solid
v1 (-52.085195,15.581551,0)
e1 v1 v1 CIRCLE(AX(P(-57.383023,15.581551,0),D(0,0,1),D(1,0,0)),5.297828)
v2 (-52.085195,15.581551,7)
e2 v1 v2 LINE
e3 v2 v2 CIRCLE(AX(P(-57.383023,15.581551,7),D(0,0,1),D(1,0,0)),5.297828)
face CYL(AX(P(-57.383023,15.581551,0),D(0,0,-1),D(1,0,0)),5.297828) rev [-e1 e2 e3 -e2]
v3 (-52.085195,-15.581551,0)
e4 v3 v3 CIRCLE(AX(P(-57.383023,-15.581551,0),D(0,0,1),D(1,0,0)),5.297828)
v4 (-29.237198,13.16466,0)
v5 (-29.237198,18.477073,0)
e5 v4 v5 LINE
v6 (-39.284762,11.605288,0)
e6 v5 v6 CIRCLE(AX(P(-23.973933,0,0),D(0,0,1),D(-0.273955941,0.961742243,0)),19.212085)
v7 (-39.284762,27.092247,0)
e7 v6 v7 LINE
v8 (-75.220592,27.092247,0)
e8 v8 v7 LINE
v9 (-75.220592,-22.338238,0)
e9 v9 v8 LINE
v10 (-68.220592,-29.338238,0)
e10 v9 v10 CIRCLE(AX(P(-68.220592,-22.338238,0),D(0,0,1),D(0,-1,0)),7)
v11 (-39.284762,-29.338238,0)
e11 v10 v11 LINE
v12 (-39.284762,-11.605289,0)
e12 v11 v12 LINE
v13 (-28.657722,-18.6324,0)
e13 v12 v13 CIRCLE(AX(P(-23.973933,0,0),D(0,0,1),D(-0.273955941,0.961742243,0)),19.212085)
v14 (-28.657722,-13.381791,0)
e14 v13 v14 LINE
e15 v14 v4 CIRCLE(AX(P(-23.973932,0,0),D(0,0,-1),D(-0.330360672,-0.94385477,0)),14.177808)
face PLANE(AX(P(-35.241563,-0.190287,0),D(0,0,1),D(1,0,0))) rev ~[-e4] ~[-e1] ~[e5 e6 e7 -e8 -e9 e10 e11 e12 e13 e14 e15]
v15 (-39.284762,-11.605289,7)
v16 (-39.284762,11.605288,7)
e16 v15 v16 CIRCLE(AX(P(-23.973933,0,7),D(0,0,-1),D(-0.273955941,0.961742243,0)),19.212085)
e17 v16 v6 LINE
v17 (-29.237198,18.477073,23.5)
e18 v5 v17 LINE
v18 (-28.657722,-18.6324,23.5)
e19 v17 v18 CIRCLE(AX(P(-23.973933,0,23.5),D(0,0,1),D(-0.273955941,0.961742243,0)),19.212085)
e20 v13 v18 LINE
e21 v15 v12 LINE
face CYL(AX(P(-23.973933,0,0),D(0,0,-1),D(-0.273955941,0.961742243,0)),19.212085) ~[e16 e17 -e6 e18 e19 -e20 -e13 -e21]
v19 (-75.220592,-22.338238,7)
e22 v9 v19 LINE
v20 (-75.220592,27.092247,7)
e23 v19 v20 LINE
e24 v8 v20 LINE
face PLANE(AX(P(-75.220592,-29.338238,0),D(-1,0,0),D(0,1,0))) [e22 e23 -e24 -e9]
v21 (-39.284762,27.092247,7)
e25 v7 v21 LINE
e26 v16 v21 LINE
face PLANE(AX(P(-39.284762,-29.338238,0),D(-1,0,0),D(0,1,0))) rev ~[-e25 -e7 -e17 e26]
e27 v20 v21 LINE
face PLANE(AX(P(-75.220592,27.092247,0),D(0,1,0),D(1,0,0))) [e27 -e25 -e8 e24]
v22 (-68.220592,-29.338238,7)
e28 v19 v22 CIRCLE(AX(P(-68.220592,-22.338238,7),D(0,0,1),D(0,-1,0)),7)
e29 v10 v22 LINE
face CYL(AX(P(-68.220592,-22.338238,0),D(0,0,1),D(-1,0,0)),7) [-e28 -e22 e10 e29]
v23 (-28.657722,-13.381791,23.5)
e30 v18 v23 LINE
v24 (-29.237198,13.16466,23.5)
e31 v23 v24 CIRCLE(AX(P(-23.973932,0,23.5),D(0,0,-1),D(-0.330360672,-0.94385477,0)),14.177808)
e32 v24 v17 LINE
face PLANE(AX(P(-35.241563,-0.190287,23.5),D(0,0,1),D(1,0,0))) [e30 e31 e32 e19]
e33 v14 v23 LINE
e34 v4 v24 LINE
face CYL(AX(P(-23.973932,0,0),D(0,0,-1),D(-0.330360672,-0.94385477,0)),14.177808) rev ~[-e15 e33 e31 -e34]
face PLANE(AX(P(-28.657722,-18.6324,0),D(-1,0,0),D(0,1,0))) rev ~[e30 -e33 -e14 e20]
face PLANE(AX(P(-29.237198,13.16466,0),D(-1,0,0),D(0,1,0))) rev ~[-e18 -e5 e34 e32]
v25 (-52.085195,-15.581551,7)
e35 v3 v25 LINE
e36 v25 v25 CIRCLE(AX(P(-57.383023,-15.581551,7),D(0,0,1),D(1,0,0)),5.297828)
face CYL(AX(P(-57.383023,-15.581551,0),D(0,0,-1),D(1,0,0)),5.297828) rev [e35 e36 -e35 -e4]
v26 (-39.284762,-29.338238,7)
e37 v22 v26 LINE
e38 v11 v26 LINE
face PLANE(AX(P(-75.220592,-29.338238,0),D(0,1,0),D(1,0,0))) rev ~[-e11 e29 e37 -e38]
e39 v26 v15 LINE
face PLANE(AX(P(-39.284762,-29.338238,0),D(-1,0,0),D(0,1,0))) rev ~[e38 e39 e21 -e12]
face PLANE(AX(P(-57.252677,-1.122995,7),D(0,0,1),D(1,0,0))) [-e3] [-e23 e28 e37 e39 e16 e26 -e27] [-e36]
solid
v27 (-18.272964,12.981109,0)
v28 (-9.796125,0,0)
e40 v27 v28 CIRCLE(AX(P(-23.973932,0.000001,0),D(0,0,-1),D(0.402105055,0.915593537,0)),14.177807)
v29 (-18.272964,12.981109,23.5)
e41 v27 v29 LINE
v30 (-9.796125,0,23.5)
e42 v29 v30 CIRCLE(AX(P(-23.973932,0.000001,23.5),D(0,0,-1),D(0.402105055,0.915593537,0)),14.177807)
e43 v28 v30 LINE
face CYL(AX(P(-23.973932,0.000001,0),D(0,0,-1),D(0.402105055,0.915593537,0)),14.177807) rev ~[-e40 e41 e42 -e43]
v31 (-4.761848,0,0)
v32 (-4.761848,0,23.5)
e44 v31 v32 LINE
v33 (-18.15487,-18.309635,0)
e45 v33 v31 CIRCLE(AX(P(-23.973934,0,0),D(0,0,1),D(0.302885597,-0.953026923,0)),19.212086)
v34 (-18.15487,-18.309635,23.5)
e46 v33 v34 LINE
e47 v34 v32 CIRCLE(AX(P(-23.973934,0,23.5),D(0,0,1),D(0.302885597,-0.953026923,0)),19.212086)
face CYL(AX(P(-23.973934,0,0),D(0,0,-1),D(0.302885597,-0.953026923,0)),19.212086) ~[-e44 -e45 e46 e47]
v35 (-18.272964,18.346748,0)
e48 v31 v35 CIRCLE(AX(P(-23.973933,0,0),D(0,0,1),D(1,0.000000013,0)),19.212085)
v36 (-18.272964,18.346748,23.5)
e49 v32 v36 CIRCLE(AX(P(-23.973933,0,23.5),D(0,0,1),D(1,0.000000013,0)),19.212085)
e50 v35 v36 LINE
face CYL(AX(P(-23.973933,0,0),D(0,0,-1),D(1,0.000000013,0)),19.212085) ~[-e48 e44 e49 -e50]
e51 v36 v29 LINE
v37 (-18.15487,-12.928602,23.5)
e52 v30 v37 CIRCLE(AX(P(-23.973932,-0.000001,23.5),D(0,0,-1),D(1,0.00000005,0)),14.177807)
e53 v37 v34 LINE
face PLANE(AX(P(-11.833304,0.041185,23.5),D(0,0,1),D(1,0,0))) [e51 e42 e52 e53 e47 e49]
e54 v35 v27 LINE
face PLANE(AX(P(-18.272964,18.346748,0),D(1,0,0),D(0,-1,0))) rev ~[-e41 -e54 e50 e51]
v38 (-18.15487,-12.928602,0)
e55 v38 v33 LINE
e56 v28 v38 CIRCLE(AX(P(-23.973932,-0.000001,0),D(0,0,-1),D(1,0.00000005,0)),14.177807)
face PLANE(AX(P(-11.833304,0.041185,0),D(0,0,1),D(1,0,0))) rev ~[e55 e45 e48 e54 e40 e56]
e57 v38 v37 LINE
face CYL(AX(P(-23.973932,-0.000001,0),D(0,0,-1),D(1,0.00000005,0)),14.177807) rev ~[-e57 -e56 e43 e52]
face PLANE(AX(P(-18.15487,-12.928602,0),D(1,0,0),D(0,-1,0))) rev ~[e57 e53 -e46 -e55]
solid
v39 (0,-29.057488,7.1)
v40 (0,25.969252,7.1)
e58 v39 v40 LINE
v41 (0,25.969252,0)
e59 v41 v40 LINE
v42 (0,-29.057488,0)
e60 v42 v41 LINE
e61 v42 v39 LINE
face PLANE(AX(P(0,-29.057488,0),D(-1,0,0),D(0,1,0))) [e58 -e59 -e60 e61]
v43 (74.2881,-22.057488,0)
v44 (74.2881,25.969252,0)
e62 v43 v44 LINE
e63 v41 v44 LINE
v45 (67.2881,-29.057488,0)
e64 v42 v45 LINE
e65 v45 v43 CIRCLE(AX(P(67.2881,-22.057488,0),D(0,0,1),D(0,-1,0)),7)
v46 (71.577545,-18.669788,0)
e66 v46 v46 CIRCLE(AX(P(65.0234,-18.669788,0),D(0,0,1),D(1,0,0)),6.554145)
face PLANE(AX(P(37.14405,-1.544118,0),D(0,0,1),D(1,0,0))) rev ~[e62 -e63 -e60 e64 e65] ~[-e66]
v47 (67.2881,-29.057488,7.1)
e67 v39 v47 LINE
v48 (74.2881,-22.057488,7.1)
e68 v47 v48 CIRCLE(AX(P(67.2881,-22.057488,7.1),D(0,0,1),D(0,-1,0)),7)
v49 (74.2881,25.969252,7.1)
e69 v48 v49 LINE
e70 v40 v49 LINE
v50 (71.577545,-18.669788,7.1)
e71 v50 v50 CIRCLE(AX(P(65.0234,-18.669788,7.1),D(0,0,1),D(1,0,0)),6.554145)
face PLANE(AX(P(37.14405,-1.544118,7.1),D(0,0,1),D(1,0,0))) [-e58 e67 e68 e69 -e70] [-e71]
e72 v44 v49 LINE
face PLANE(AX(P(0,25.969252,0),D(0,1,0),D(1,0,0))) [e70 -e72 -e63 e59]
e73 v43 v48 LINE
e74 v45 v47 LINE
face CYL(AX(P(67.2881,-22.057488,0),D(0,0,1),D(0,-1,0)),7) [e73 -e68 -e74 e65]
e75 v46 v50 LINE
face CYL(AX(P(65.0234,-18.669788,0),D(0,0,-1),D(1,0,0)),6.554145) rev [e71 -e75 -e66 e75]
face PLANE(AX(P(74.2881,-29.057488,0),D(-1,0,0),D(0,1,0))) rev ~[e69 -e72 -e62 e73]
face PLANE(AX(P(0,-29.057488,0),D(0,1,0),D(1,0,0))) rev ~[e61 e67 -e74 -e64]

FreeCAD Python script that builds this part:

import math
import FreeCAD as App
import Part
import Sketcher


def edges_at(feature, points):
    """Names of the edges that pass closest to the given points."""
    edges = feature.Shape.Edges
    near = lambda p: min(range(len(edges)), key=lambda i: edges[i].distToShape(Part.Vertex(*p))[0])
    return sorted({f"Edge{near(p) + 1}" for p in points})


def add_polygon(sketch, points):
    """Adds a closed chain of lines whose ends are joined by coincident constraints."""
    first, n = sketch.GeometryCount, len(points)
    for a, b in zip(points, points[1:] + points[:1]):
        sketch.addGeometry(Part.LineSegment(App.Vector(*a, 0), App.Vector(*b, 0)), False)
    for i in range(n):
        sketch.addConstraint(Sketcher.Constraint("Coincident", first + i, 2, first + (i + 1) % n, 1))

doc = App.newDocument("Part")
body = doc.addObject("PartDesign::Body", "Body")
body.AllowCompound = True

# Sketch on XY plane
sketch1 = body.newObject("Sketcher::SketchObject", "Sketch")
sketch1.AttachmentSupport = (doc.getObject("XY_Plane"), [""])
sketch1.MapMode = "FlatFace"
add_polygon(sketch1, [(-75, 27), (-75, -29), (-39, -29), (-39, 27)])  # lines 0-3
sketch1.addGeometry(Part.Circle(App.Vector(-57, -16, 0), App.Vector(0, 0, 1), 5), False)  # 4
sketch1.addGeometry(Part.Circle(App.Vector(-57, 16, 0), App.Vector(0, 0, 1), 5), False)  # 5
sketch1.addConstraint(Sketcher.Constraint("Vertical", 0))
sketch1.addConstraint(Sketcher.Constraint("Horizontal", 1))
sketch1.addConstraint(Sketcher.Constraint("Vertical", 2))
sketch1.addConstraint(Sketcher.Constraint("Horizontal", 3))
sketch1.addConstraint(Sketcher.Constraint("Equal", 4, 5))
sketch1.addConstraint(Sketcher.Constraint("Symmetric", 4, 3, 5, 3, -1))
sketch1.addConstraint(Sketcher.Constraint("Diameter", 4, 10.595656))
sketch1.addConstraint(Sketcher.Constraint("DistanceX", 1, 1, 1, 2, 35.93583))
sketch1.addConstraint(Sketcher.Constraint("DistanceY", 4, 3, 5, 3, 31.163102))
sketch1.addConstraint(Sketcher.Constraint("DistanceY", 4, 3, 2, 2, 42.673798))
sketch1.addConstraint(Sketcher.Constraint("DistanceY", 0, 2, 0, 1, 56.430485))
sketch1.addConstraint(Sketcher.Constraint("DistanceX", 0, 2, -1, 1, 75.220592))
sketch1.addConstraint(Sketcher.Constraint("DistanceX", 0, 2, 4, 3, 17.837569))
pad1 = body.newObject("PartDesign::Pad", "Pad")
pad1.Profile = sketch1
pad1.Length = 7
doc.recompute()

fillet = body.newObject("PartDesign::Fillet", "Fillet")
fillet.Base = (pad1, edges_at(pad1, [(-75.221, -29.338, 3.5)]))
fillet.Radius = 7

# Sketch on XY plane
sketch2 = body.newObject("Sketcher::SketchObject", "Sketch001")
sketch2.AttachmentSupport = (doc.getObject("XY_Plane"), [""])
sketch2.MapMode = "FlatFace"
sketch2.addGeometry(Part.LineSegment(App.Vector(-29, 13, 0), App.Vector(-29, 18, 0)), False)
sketch2.addGeometry(Part.ArcOfCircle(Part.Circle(App.Vector(-24, 0, 0), App.Vector(0, 0, 1), 19), math.radians(106), math.radians(256)), False)
sketch2.addGeometry(Part.LineSegment(App.Vector(-29, -19, 0), App.Vector(-29, -13, 0)), False)
sketch2.addGeometry(Part.ArcOfCircle(Part.Circle(App.Vector(-24, 0, 0), App.Vector(0, 0, 1), 14), math.radians(112), math.radians(251)), False)
sketch2.addGeometry(Part.ArcOfCircle(Part.Circle(App.Vector(-24, 0, 0), App.Vector(0, 0, 1), 19), math.radians(-72), math.radians(0)), False)
sketch2.addGeometry(Part.ArcOfCircle(Part.Circle(App.Vector(-24, 0, 0), App.Vector(0, 0, 1), 19), math.radians(0), math.radians(73)), False)
sketch2.addGeometry(Part.LineSegment(App.Vector(-18, 18, 0), App.Vector(-18, 13, 0)), False)
sketch2.addGeometry(Part.ArcOfCircle(Part.Circle(App.Vector(-24, 0, 0), App.Vector(0, 0, 1), 14), math.radians(0), math.radians(66)), False)
sketch2.addGeometry(Part.ArcOfCircle(Part.Circle(App.Vector(-24, 0, 0), App.Vector(0, 0, 1), 14), math.radians(-66), math.radians(0)), False)
sketch2.addGeometry(Part.LineSegment(App.Vector(-18, -13, 0), App.Vector(-18, -18, 0)), False)
sketch2.addConstraint(Sketcher.Constraint("Coincident", 0, 2, 1, 1))
sketch2.addConstraint(Sketcher.Constraint("Coincident", 1, 2, 2, 1))
sketch2.addConstraint(Sketcher.Constraint("Coincident", 2, 2, 3, 2))
sketch2.addConstraint(Sketcher.Constraint("Coincident", 3, 1, 0, 1))
sketch2.addConstraint(Sketcher.Constraint("Tangent", 4, 2, 5, 1))
sketch2.addConstraint(Sketcher.Constraint("Coincident", 5, 2, 6, 1))
sketch2.addConstraint(Sketcher.Constraint("Coincident", 6, 2, 7, 2))
sketch2.addConstraint(Sketcher.Constraint("Tangent", 7, 1, 8, 2))
sketch2.addConstraint(Sketcher.Constraint("Coincident", 8, 1, 9, 1))
sketch2.addConstraint(Sketcher.Constraint("Coincident", 9, 2, 4, 1))
sketch2.addConstraint(Sketcher.Constraint("Vertical", 0))
sketch2.addConstraint(Sketcher.Constraint("Vertical", 2))
sketch2.addConstraint(Sketcher.Constraint("Vertical", 6))
sketch2.addConstraint(Sketcher.Constraint("Vertical", 9))
sketch2.addConstraint(Sketcher.Constraint("Coincident", 3, 3, 1, 3))
sketch2.addConstraint(Sketcher.Constraint("Coincident", 4, 3, 1, 3))
sketch2.addConstraint(Sketcher.Constraint("Coincident", 7, 3, 1, 3))
sketch2.addConstraint(Sketcher.Constraint("Equal", 1, 4))
sketch2.addConstraint(Sketcher.Constraint("Equal", 4, 5))
sketch2.addConstraint(Sketcher.Constraint("Equal", 3, 7))
sketch2.addConstraint(Sketcher.Constraint("Equal", 7, 8))
sketch2.addConstraint(Sketcher.Constraint("PointOnObject", 1, 3, -1))
sketch2.addConstraint(Sketcher.Constraint("PointOnObject", 4, 2, -1))
sketch2.addConstraint(Sketcher.Constraint("PointOnObject", 7, 1, -1))
sketch2.addConstraint(Sketcher.Constraint("Radius", 1, 19.212085))
sketch2.addConstraint(Sketcher.Constraint("Radius", 3, 14.177808))
sketch2.addConstraint(Sketcher.Constraint("DistanceY", 2, 1, 2, 2, 5.250609))
sketch2.addConstraint(Sketcher.Constraint("DistanceY", 6, 2, 6, 1, 5.365639))
sketch2.addConstraint(Sketcher.Constraint("DistanceX", 3, 1, -1, 1, 29.237198))
sketch2.addConstraint(Sketcher.Constraint("DistanceY", 1, 2, 8, 1, 5.703798))
sketch2.addConstraint(Sketcher.Constraint("DistanceY", 0, 1, 0, 2, 5.312413))
pad2 = body.newObject("PartDesign::Pad", "Pad001")
pad2.Profile = sketch2
pad2.Length = 23.5
body2 = doc.addObject("PartDesign::Body", "Body001")

# Sketch on XY plane
sketch3 = body2.newObject("Sketcher::SketchObject", "Sketch002")
sketch3.AttachmentSupport = (doc.getObject("XY_Plane001"), [""])
sketch3.MapMode = "FlatFace"
add_polygon(sketch3, [(0, 26), (0, -29), (74, -29), (74, 26)])  # lines 0-3
sketch3.addGeometry(Part.Circle(App.Vector(65, -19, 0), App.Vector(0, 0, 1), 7), False)  # 4
sketch3.addConstraint(Sketcher.Constraint("Vertical", 0))
sketch3.addConstraint(Sketcher.Constraint("Horizontal", 1))
sketch3.addConstraint(Sketcher.Constraint("Vertical", 2))
sketch3.addConstraint(Sketcher.Constraint("Horizontal", 3))
sketch3.addConstraint(Sketcher.Constraint("PointOnObject", 0, 2, -2))
sketch3.addConstraint(Sketcher.Constraint("Diameter", 4, 13.10829))
sketch3.addConstraint(Sketcher.Constraint("DistanceX", 1, 1, 1, 2, 74.2881))
sketch3.addConstraint(Sketcher.Constraint("DistanceY", 0, 2, 0, 1, 55.02674))
sketch3.addConstraint(Sketcher.Constraint("DistanceX", -1, 1, 4, 3, 65.0234))
sketch3.addConstraint(Sketcher.Constraint("DistanceY", 0, 2, 4, 3, 10.3877))
sketch3.addConstraint(Sketcher.Constraint("DistanceY", 4, 3, -1, 1, 18.669788))
pad3 = body2.newObject("PartDesign::Pad", "Pad002")
pad3.Profile = sketch3
pad3.Length = 7.1
doc.recompute()

fillet2 = body2.newObject("PartDesign::Fillet", "Fillet001")
fillet2.Base = (pad3, edges_at(pad3, [(74.288, -29.057, 3.55)]))
fillet2.Radius = 7

doc.recompute()
